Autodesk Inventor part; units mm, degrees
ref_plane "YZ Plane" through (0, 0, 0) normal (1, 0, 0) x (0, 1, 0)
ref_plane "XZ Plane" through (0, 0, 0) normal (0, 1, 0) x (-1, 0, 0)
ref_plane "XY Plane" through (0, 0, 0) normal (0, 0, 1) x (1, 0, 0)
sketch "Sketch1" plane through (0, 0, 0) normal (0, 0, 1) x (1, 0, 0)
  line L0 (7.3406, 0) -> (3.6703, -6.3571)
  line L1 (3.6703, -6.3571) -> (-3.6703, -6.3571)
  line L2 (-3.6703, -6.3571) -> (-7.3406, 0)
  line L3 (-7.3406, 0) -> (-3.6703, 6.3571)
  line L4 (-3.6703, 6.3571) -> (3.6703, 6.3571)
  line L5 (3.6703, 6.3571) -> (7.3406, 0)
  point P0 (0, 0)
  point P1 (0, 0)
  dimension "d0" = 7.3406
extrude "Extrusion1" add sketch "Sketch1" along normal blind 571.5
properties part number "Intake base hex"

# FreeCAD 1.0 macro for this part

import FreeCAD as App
import Part
import Sketcher
Q = App.Units.Quantity


def add_polygon(sketch, points):
    """Adds a closed chain of lines whose ends are joined by coincident constraints."""
    first, n = sketch.GeometryCount, len(points)
    for a, b in zip(points, points[1:] + points[:1]):
        sketch.addGeometry(Part.LineSegment(App.Vector(*a, 0), App.Vector(*b, 0)), False)
    for i in range(n):
        sketch.addConstraint(Sketcher.Constraint("Coincident", first + i, 2, first + (i + 1) % n, 1))

doc = App.newDocument("Part")
body = doc.addObject("PartDesign::Body", "Body")

sketch1 = body.newObject("Sketcher::SketchObject", "Sketch")
sketch1.AttachmentSupport = (doc.getObject("XY_Plane"), [""])
sketch1.MapMode = "FlatFace"
add_polygon(sketch1, [(4, -6), (7, 0), (4, 6), (-4, 6), (-7, 0), (-4, -6)])
sketch1.addConstraint([
    Sketcher.Constraint("Horizontal", 2),
    Sketcher.Constraint("Horizontal", 5),
    Sketcher.Constraint("Symmetric", 0, 2, 3, 2, -1, 1),
    Sketcher.Constraint("Symmetric", 1, 2, 4, 2, -1, 1),
    Sketcher.Constraint("PointOnObject", 0, 2, -1),
    Sketcher.Constraint("Parallel", 0, 3),
    Sketcher.Constraint("Vertical", 2, 2, 4, 2),
    Sketcher.Constraint("DistanceX", 2, 2, 2, 1, Q("0.289 in")),
    Sketcher.Constraint("Distance", 0, Q("0.289 in")),
    Sketcher.Constraint("DistanceX", -1, 1, 0, 2, Q("0.289 in")),
])
pad1 = body.newObject("PartDesign::Pad", "Pad")
pad1.Profile = sketch1
pad1.Length = Q("22.5 in")

doc.recompute()
